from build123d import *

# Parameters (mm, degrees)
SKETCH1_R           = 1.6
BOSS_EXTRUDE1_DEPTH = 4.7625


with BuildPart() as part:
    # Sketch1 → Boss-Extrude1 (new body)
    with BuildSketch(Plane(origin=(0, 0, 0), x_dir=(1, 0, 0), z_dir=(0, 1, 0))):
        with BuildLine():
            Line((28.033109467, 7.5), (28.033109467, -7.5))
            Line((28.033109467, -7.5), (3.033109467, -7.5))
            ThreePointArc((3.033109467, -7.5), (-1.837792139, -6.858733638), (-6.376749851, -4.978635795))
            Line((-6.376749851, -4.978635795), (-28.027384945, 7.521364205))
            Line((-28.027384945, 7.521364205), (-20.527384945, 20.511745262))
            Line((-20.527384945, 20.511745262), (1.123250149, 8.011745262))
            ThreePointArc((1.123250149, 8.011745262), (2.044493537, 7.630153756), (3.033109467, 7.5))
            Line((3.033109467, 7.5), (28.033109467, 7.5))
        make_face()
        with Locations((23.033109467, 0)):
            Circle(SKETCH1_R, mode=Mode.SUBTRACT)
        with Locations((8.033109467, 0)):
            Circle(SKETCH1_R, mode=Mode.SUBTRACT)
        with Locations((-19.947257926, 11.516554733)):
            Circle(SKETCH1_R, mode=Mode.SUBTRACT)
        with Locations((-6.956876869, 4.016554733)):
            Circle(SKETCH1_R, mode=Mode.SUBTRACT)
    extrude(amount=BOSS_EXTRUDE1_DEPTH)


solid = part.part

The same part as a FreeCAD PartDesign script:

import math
import FreeCAD as App
import Part
import Sketcher

V = App.Vector
Q = App.Units.Quantity

doc = App.newDocument("Part")
body = doc.addObject("PartDesign::Body", "Body")

sketch1 = body.newObject("Sketcher::SketchObject", "Sketch")
sketch1.AttachmentSupport = (doc.getObject("XZ_Plane"), [""])
sketch1.MapMode = "FlatFace"
sketch1.addGeometry([
    Part.LineSegment(V(28, 7.5, 0), V(28, -7.5, 0)),
    Part.LineSegment(V(28, -7.5, 0), V(3, -7.5, 0)),
    Part.ArcOfCircle(Part.Circle(V(3, -11.3, 0), V(0, 0, 1), 3.8), math.radians(90), math.radians(120)),
    Part.LineSegment(V(1.1, -8, 0), V(-20.5, -20.5, 0)),
    Part.LineSegment(V(-20.5, -20.5, 0), V(-28, -7.5, 0)),
    Part.LineSegment(V(-28, -7.5, 0), V(-6.4, 5, 0)),
    Part.ArcOfCircle(Part.Circle(V(3, -11.3, 0), V(0, 0, 1), 18.8), math.radians(90), math.radians(120)),
    Part.LineSegment(V(3, 7.5, 0), V(28, 7.5, 0)),
    Part.Circle(V(23, 0, 0), V(0, 0, 1), 1.6),
    Part.Circle(V(8, 0, 0), V(0, 0, 1), 1.6),
    Part.Circle(V(-7, -4, 0), V(0, 0, 1), 1.6),
    Part.Circle(V(-19.9, -11.5, 0), V(0, 0, 1), 1.6),
], False)
sketch1.addConstraint([
    Sketcher.Constraint("Coincident", 0, 2, 1, 1),
    Sketcher.Constraint("Tangent", 1, 2, 2, 1),
    Sketcher.Constraint("Tangent", 2, 2, 3, 1),
    Sketcher.Constraint("Coincident", 3, 2, 4, 1),
    Sketcher.Constraint("Coincident", 4, 2, 5, 1),
    Sketcher.Constraint("Tangent", 5, 2, 6, 2),
    Sketcher.Constraint("Tangent", 6, 1, 7, 1),
    Sketcher.Constraint("Coincident", 7, 2, 0, 1),
    Sketcher.Constraint("Vertical", 0),
    Sketcher.Constraint("Horizontal", 1),
    Sketcher.Constraint("Horizontal", 7),
    Sketcher.Constraint("Coincident", 6, 3, 2, 3),
    Sketcher.Constraint("Equal", 8, 9),
    Sketcher.Constraint("Equal", 9, 10),
    Sketcher.Constraint("Equal", 10, 11),
    Sketcher.Constraint("PointOnObject", 8, 3, -1),
    Sketcher.Constraint("PointOnObject", 9, 3, -1),
    Sketcher.Constraint("Perpendicular", 3, 4),
    Sketcher.Constraint("Perpendicular", 4, 5),
    Sketcher.Constraint("Diameter", 8, 3.2),
    Sketcher.Constraint("DistanceX", 1, 2, 1, 1, 25.0),
    Sketcher.Constraint("DistanceY", 0, 2, 0, 1, 15.0),
    Sketcher.Constraint("Angle", 3, Q("-150 deg")),
    Sketcher.Constraint("Distance", 3, 25.0),
    Sketcher.Constraint("DistanceX", 2, 3, 8, 3, 20.0),
    Sketcher.Constraint("DistanceX", 2, 3, 9, 3, 5.0),
    Sketcher.Constraint("DistanceY", 0, 2, -1, 1, 7.5),
    Sketcher.Constraint("DistanceY", 11, 3, 10, 3, 7.5),
    Sketcher.Constraint("Radius", 2, 3.819719),
    Sketcher.Constraint("DistanceX", -1, 1, 2, 3, 3.033109),
    Sketcher.Constraint("DistanceX", 11, 3, 10, 3, 12.990381),
    Sketcher.Constraint("DistanceY", 2, 2, 10, 3, 3.995191),
    Sketcher.Constraint("DistanceX", 3, 2, 10, 3, 13.570508),
])
pad1 = body.newObject("PartDesign::Pad", "Pad")
pad1.Profile = sketch1
pad1.Length = 4.7625
pad1.Reversed = True

doc.recompute()
